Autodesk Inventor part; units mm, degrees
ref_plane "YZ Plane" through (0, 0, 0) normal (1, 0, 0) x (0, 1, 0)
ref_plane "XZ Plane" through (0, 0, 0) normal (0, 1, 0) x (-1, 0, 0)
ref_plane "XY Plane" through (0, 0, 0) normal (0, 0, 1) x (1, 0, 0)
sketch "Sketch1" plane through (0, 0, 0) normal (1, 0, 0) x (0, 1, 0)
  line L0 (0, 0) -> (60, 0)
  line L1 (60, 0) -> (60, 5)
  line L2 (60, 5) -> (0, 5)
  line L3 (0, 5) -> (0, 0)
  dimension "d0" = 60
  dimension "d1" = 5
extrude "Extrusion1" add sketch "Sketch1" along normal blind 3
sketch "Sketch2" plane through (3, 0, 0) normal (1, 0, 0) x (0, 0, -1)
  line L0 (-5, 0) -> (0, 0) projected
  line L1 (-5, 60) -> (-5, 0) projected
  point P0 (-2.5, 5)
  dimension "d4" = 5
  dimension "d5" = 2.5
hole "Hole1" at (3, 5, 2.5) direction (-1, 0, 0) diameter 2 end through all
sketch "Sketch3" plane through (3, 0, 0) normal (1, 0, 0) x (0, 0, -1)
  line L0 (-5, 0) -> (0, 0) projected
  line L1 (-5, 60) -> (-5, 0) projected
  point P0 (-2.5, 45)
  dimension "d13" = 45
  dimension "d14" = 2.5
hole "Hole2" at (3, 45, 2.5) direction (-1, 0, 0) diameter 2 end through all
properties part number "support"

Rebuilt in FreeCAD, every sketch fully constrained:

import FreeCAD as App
import Part
import Sketcher

V = App.Vector
Q = App.Units.Quantity

doc = App.newDocument("Part")
body = doc.addObject("PartDesign::Body", "Body")

# Sketch on YZ plane
sketch1 = body.newObject("Sketcher::SketchObject", "Sketch")
sketch1.AttachmentSupport = (doc.getObject("YZ_Plane"), [""])
sketch1.MapMode = "FlatFace"
sketch1.addGeometry([
    Part.LineSegment(V(0, 5, 0), V(0, 0, 0)),
    Part.LineSegment(V(0, 0, 0), V(60, 0, 0)),
    Part.LineSegment(V(60, 0, 0), V(60, 5, 0)),
    Part.LineSegment(V(60, 5, 0), V(0, 5, 0)),
], False)
sketch1.addConstraint([
    Sketcher.Constraint("Coincident", 0, 2, 1, 1),
    Sketcher.Constraint("Coincident", 1, 2, 2, 1),
    Sketcher.Constraint("Coincident", 2, 2, 3, 1),
    Sketcher.Constraint("Coincident", 3, 2, 0, 1),
    Sketcher.Constraint("Vertical", 0),
    Sketcher.Constraint("Horizontal", 1),
    Sketcher.Constraint("Vertical", 2),
    Sketcher.Constraint("Horizontal", 3),
    Sketcher.Constraint("Coincident", 0, 2, -1, 1),
    Sketcher.Constraint("DistanceX", 1, 1, 1, 2, Q("60 mm")),
    Sketcher.Constraint("DistanceY", 0, 2, 0, 1, Q("5 mm")),
])
pad1 = body.newObject("PartDesign::Pad", "Pad")
pad1.Profile = sketch1
pad1.Length = 3

# Sketch on YZ plane
sketch2 = body.newObject("Sketcher::SketchObject", "Sketch001")
sketch2.AttachmentSupport = (doc.getObject("YZ_Plane"), [""])
sketch2.MapMode = "FlatFace"
sketch2.AttachmentOffset = App.Placement(V(0, 0, 3), App.Rotation())
sketch2.addGeometry(Part.Circle(V(5, 2.5, 0), V(0, 0, 1), 1), False)
sketch2.addConstraint([
    Sketcher.Constraint("Diameter", 0, Q("2 mm")),
    Sketcher.Constraint("DistanceX", -1, 1, 0, 3, Q("5 mm")),
    Sketcher.Constraint("DistanceY", -1, 1, 0, 3, Q("2.5 mm")),
])
doc.recompute()
hole = body.newObject("PartDesign::Hole", "Hole")
hole.Profile = sketch2
hole.ThreadType = "None"
hole.Diameter = 2
hole.DepthType = "ThroughAll"

# Sketch on YZ plane
sketch3 = body.newObject("Sketcher::SketchObject", "Sketch002")
sketch3.AttachmentSupport = (doc.getObject("YZ_Plane"), [""])
sketch3.MapMode = "FlatFace"
sketch3.AttachmentOffset = App.Placement(V(0, 0, 3), App.Rotation())
sketch3.addGeometry(Part.Circle(V(45, 2.5, 0), V(0, 0, 1), 1), False)
sketch3.addConstraint([
    Sketcher.Constraint("Diameter", 0, Q("2 mm")),
    Sketcher.Constraint("DistanceX", -1, 1, 0, 3, Q("45 mm")),
    Sketcher.Constraint("DistanceY", -1, 1, 0, 3, Q("2.5 mm")),
])
doc.recompute()
hole2 = body.newObject("PartDesign::Hole", "Hole001")
hole2.Profile = sketch3
hole2.ThreadType = "None"
hole2.Diameter = 2
hole2.DepthType = "ThroughAll"

doc.recompute()
